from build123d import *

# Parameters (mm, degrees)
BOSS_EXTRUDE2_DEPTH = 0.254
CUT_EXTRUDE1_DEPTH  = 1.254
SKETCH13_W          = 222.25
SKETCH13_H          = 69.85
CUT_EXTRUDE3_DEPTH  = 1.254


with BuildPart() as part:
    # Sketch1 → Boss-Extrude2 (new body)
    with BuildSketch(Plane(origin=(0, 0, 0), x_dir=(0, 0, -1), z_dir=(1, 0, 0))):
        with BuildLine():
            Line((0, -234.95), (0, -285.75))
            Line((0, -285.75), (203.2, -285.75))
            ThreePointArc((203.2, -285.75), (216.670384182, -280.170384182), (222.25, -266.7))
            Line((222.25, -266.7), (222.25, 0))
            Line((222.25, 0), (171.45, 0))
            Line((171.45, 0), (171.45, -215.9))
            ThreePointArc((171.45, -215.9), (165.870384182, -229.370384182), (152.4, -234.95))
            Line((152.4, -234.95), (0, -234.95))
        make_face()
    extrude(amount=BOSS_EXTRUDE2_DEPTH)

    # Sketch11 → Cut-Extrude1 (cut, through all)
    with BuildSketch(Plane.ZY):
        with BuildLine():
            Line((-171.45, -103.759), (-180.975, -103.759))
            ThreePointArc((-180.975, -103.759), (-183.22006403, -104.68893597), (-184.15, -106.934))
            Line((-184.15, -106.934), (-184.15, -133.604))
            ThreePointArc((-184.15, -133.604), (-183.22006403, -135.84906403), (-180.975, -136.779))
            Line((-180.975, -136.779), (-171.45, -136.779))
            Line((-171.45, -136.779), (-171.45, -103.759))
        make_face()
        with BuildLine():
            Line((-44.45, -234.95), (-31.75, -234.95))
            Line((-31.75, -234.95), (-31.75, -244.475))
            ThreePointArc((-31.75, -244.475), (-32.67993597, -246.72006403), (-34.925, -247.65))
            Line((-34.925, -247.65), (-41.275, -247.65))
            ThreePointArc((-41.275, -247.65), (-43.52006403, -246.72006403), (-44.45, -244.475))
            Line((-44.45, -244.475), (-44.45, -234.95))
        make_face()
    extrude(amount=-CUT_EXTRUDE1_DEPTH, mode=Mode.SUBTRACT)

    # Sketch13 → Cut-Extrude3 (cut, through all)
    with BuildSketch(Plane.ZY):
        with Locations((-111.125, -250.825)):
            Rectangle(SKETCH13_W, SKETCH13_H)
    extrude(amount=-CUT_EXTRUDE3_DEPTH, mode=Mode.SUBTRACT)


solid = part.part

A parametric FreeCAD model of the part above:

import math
import FreeCAD as App
import Part
import Sketcher

V = App.Vector
Q = App.Units.Quantity

doc = App.newDocument("Part")
params = doc.addObject("Spreadsheet::Sheet", "Params")
for row, (alias, value) in enumerate([
    ("sketch1_width", "2 in"),
    ("sketch1_height", "8 in"),
    ("sketch1_radius", "0.75 in"),
    ("sketch1_width2", "10.5 in"),
    ("pad1_length", "0.01 in"),
    ("sketch2_width", "1.3 in"),
    ("sketch2_height", "0.5 in"),
    ("sketch2_radius", "0.125 in"),
    ("sketch3_width", "2.75 in"),
    ("sketch3_height", "8.75 in"),
], start=1):
    params.set(f"A{row}", alias)
    params.set(f"B{row}", "=" + value)
    params.setAlias(f"B{row}", alias)

body = doc.addObject("PartDesign::Body", "Body")

# Sketch on YZ plane
sketch1 = body.newObject("Sketcher::SketchObject", "Sketch")
sketch1.AttachmentSupport = (doc.getObject("YZ_Plane"), [""])
sketch1.MapMode = "FlatFace"
sketch1.addGeometry(Part.LineSegment(V(-235, 0, 0), V(-286, 0, 0)), False)
sketch1.addGeometry(Part.LineSegment(V(-286, 0, 0), V(-286, -203, 0)), False)
sketch1.addGeometry(Part.ArcOfCircle(Part.Circle(V(-267, -203, 0), V(0, 0, 1), 19), math.radians(180), math.radians(270)), False)
sketch1.addGeometry(Part.LineSegment(V(-267, -222, 0), V(0, -222, 0)), False)
sketch1.addGeometry(Part.LineSegment(V(0, -222, 0), V(0, -171, 0)), False)
sketch1.addGeometry(Part.LineSegment(V(0, -171, 0), V(-216, -171, 0)), False)
sketch1.addGeometry(Part.ArcOfCircle(Part.Circle(V(-216, -152, 0), V(0, 0, 1), 19), math.radians(180), math.radians(270)), False)
sketch1.addGeometry(Part.LineSegment(V(-235, -152, 0), V(-235, 0, 0)), False)
sketch1.addConstraint(Sketcher.Constraint("Coincident", 0, 2, 1, 1))
sketch1.addConstraint(Sketcher.Constraint("Tangent", 1, 2, 2, 1))
sketch1.addConstraint(Sketcher.Constraint("Tangent", 2, 2, 3, 1))
sketch1.addConstraint(Sketcher.Constraint("Coincident", 3, 2, 4, 1))
sketch1.addConstraint(Sketcher.Constraint("Coincident", 4, 2, 5, 1))
sketch1.addConstraint(Sketcher.Constraint("Tangent", 5, 2, 6, 2))
sketch1.addConstraint(Sketcher.Constraint("Tangent", 6, 1, 7, 1))
sketch1.addConstraint(Sketcher.Constraint("Coincident", 7, 2, 0, 1))
sketch1.addConstraint(Sketcher.Constraint("Horizontal", 0))
sketch1.addConstraint(Sketcher.Constraint("Vertical", 1))
sketch1.addConstraint(Sketcher.Constraint("Horizontal", 3))
sketch1.addConstraint(Sketcher.Constraint("Vertical", 4))
sketch1.addConstraint(Sketcher.Constraint("Horizontal", 5))
sketch1.addConstraint(Sketcher.Constraint("Vertical", 7))
sketch1.addConstraint(Sketcher.Constraint("Equal", 2, 6))
sketch1.addConstraint(Sketcher.Constraint("PointOnObject", 0, 2, -1))
sketch1.addConstraint(Sketcher.Constraint("PointOnObject", 3, 2, -2))
sketch1.addConstraint(Sketcher.Constraint("Equal", 0, 4))
sketch1.addConstraint(Sketcher.Constraint("DistanceX", 0, 2, 0, 1, Q("2 in")))
sketch1.addConstraint(Sketcher.Constraint("DistanceY", 1, 2, 1, 1, Q("8 in")))
sketch1.addConstraint(Sketcher.Constraint("Radius", 2, Q("0.75 in")))
sketch1.addConstraint(Sketcher.Constraint("DistanceX", 3, 1, 3, 2, Q("10.5 in")))
sketch1.setExpression("Constraints[18]", "Params.sketch1_width")
sketch1.setExpression("Constraints[19]", "Params.sketch1_height")
sketch1.setExpression("Constraints[20]", "Params.sketch1_radius")
sketch1.setExpression("Constraints[21]", "Params.sketch1_width2")
pad1 = body.newObject("PartDesign::Pad", "Pad")
pad1.Profile = sketch1
pad1.setExpression("Length", "Params.pad1_length")

# Sketch on YZ plane
sketch2 = body.newObject("Sketcher::SketchObject", "Sketch001")
sketch2.AttachmentSupport = (doc.getObject("YZ_Plane"), [""])
sketch2.MapMode = "FlatFace"
sketch2.addGeometry(Part.LineSegment(V(-103.8, -171.4, 0), V(-103.8, -181, 0)), False)
sketch2.addGeometry(Part.ArcOfCircle(Part.Circle(V(-106.9, -181, 0), V(0, 0, 1), 3.2), math.radians(-90), math.radians(0)), False)
sketch2.addGeometry(Part.LineSegment(V(-106.9, -184.2, 0), V(-133.6, -184.2, 0)), False)
sketch2.addGeometry(Part.ArcOfCircle(Part.Circle(V(-133.6, -181, 0), V(0, 0, 1), 3.2), math.radians(-180), math.radians(-90)), False)
sketch2.addGeometry(Part.LineSegment(V(-136.8, -181, 0), V(-136.8, -171.4, 0)), False)
sketch2.addGeometry(Part.LineSegment(V(-136.8, -171.4, 0), V(-103.8, -171.4, 0)), False)
sketch2.addGeometry(Part.LineSegment(V(-234.9, -31.8, 0), V(-234.9, -44.5, 0)), False)
sketch2.addGeometry(Part.LineSegment(V(-234.9, -44.5, 0), V(-244.5, -44.5, 0)), False)
sketch2.addGeometry(Part.ArcOfCircle(Part.Circle(V(-244.5, -41.3, 0), V(0, 0, 1), 3.2), math.radians(-180), math.radians(-90)), False)
sketch2.addGeometry(Part.LineSegment(V(-247.7, -41.3, 0), V(-247.7, -34.9, 0)), False)
sketch2.addGeometry(Part.ArcOfCircle(Part.Circle(V(-244.5, -34.9, 0), V(0, 0, 1), 3.2), math.radians(90), math.radians(180)), False)
sketch2.addGeometry(Part.LineSegment(V(-244.5, -31.8, 0), V(-234.9, -31.8, 0)), False)
sketch2.addConstraint(Sketcher.Constraint("Tangent", 0, 2, 1, 2))
sketch2.addConstraint(Sketcher.Constraint("Tangent", 1, 1, 2, 1))
sketch2.addConstraint(Sketcher.Constraint("Tangent", 2, 2, 3, 2))
sketch2.addConstraint(Sketcher.Constraint("Tangent", 3, 1, 4, 1))
sketch2.addConstraint(Sketcher.Constraint("Coincident", 4, 2, 5, 1))
sketch2.addConstraint(Sketcher.Constraint("Coincident", 5, 2, 0, 1))
sketch2.addConstraint(Sketcher.Constraint("Coincident", 6, 2, 7, 1))
sketch2.addConstraint(Sketcher.Constraint("Tangent", 7, 2, 8, 2))
sketch2.addConstraint(Sketcher.Constraint("Tangent", 8, 1, 9, 1))
sketch2.addConstraint(Sketcher.Constraint("Tangent", 9, 2, 10, 2))
sketch2.addConstraint(Sketcher.Constraint("Tangent", 10, 1, 11, 1))
sketch2.addConstraint(Sketcher.Constraint("Coincident", 11, 2, 6, 1))
sketch2.addConstraint(Sketcher.Constraint("Vertical", 0))
sketch2.addConstraint(Sketcher.Constraint("Horizontal", 2))
sketch2.addConstraint(Sketcher.Constraint("Vertical", 4))
sketch2.addConstraint(Sketcher.Constraint("Horizontal", 5))
sketch2.addConstraint(Sketcher.Constraint("Vertical", 6))
sketch2.addConstraint(Sketcher.Constraint("Horizontal", 7))
sketch2.addConstraint(Sketcher.Constraint("Vertical", 9))
sketch2.addConstraint(Sketcher.Constraint("Horizontal", 11))
sketch2.addConstraint(Sketcher.Constraint("Equal", 1, 3))
sketch2.addConstraint(Sketcher.Constraint("Equal", 3, 8))
sketch2.addConstraint(Sketcher.Constraint("Equal", 8, 10))
sketch2.addConstraint(Sketcher.Constraint("Equal", 11, 0))
sketch2.addConstraint(Sketcher.Constraint("DistanceX", 5, 1, 5, 2, Q("1.3 in")))
sketch2.addConstraint(Sketcher.Constraint("DistanceY", 6, 2, 6, 1, Q("0.5 in")))
sketch2.addConstraint(Sketcher.Constraint("Radius", 1, Q("0.125 in")))
sketch2.addConstraint(Sketcher.Constraint("DistanceY", 4, 2, 6, 2, Q("5 in")))
sketch2.addConstraint(Sketcher.Constraint("DistanceY", 3, 3, 8, 3, Q("5.5 in")))
sketch2.addConstraint(Sketcher.Constraint("DistanceX", 1, 3, -1, 1, Q("4.21 in")))
sketch2.addConstraint(Sketcher.Constraint("DistanceY", 1, 1, -1, 1, Q("7.25 in")))
sketch2.addConstraint(Sketcher.Constraint("DistanceX", 6, 2, -1, 1, Q("9.25 in")))
sketch2.setExpression("Constraints[24]", "Params.sketch2_width")
sketch2.setExpression("Constraints[25]", "Params.sketch2_height")
sketch2.setExpression("Constraints[26]", "Params.sketch2_radius")
pocket1 = body.newObject("PartDesign::Pocket", "Pocket")
pocket1.Profile = sketch2
pocket1.Type = "ThroughAll"
pocket1.Reversed = True

# Sketch on YZ plane
sketch3 = body.newObject("Sketcher::SketchObject", "Sketch002")
sketch3.AttachmentSupport = (doc.getObject("YZ_Plane"), [""])
sketch3.MapMode = "FlatFace"
sketch3.addGeometry(Part.LineSegment(V(-216, -222, 0), V(-286, -222, 0)), False)
sketch3.addGeometry(Part.LineSegment(V(-286, -222, 0), V(-286, 0, 0)), False)
sketch3.addGeometry(Part.LineSegment(V(-286, 0, 0), V(-216, 0, 0)), False)
sketch3.addGeometry(Part.LineSegment(V(-216, 0, 0), V(-216, -222, 0)), False)
sketch3.addConstraint(Sketcher.Constraint("Coincident", 0, 2, 1, 1))
sketch3.addConstraint(Sketcher.Constraint("Coincident", 1, 2, 2, 1))
sketch3.addConstraint(Sketcher.Constraint("Coincident", 2, 2, 3, 1))
sketch3.addConstraint(Sketcher.Constraint("Coincident", 3, 2, 0, 1))
sketch3.addConstraint(Sketcher.Constraint("Horizontal", 0))
sketch3.addConstraint(Sketcher.Constraint("Vertical", 1))
sketch3.addConstraint(Sketcher.Constraint("Horizontal", 2))
sketch3.addConstraint(Sketcher.Constraint("Vertical", 3))
sketch3.addConstraint(Sketcher.Constraint("PointOnObject", 1, 2, -1))
sketch3.addConstraint(Sketcher.Constraint("DistanceX", 0, 2, 0, 1, Q("2.75 in")))
sketch3.addConstraint(Sketcher.Constraint("DistanceY", 1, 1, 1, 2, Q("8.75 in")))
sketch3.addConstraint(Sketcher.Constraint("DistanceX", 2, 2, -1, 1, Q("8.5 in")))
sketch3.setExpression("Constraints[9]", "Params.sketch3_width")
sketch3.setExpression("Constraints[10]", "Params.sketch3_height")
pocket2 = body.newObject("PartDesign::Pocket", "Pocket001")
pocket2.Profile = sketch3
pocket2.Type = "ThroughAll"
pocket2.Reversed = True

doc.recompute()
